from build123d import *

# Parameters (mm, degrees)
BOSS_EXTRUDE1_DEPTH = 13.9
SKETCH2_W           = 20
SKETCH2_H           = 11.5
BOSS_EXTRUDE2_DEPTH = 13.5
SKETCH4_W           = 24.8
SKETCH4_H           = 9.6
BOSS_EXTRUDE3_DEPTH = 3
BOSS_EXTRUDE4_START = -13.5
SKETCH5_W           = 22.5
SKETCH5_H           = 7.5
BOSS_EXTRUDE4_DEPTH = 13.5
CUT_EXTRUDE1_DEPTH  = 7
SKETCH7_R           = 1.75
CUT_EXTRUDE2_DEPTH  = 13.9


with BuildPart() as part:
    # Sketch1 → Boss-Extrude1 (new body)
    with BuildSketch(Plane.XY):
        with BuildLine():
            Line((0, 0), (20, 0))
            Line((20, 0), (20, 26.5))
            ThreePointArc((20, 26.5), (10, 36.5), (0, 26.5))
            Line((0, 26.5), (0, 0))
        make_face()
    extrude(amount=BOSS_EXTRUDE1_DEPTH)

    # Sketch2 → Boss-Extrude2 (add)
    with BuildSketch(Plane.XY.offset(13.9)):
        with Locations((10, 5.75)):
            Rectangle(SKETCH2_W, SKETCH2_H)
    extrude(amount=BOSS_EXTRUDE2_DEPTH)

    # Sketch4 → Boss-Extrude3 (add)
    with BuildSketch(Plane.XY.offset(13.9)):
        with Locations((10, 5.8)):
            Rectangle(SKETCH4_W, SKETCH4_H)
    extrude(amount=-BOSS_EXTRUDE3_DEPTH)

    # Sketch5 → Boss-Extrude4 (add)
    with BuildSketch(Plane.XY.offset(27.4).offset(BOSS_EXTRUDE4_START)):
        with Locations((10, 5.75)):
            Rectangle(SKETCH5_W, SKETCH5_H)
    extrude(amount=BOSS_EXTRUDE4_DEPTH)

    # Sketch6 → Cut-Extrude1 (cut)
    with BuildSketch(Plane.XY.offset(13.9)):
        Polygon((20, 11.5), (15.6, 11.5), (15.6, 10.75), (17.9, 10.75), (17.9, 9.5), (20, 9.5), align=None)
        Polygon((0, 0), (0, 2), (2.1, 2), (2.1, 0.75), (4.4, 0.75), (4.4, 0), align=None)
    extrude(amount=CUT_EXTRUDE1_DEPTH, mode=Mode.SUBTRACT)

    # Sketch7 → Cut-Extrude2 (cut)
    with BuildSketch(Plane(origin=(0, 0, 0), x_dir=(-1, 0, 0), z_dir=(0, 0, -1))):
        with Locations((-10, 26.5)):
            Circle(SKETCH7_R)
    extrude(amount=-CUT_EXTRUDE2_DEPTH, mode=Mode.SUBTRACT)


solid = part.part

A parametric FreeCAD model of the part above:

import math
import FreeCAD as App
import Part
import Sketcher

V = App.Vector
Q = App.Units.Quantity

doc = App.newDocument("Part")
body = doc.addObject("PartDesign::Body", "Body")

# Sketch on XY plane
sketch1 = doc.addObject("Sketcher::SketchObject", "Sketch")
body.addObject(sketch1)
sketch1.AttachmentSupport = (doc.XY_Plane, [""])
sketch1.MapMode = "FlatFace"
sketch1.addGeometry([
    Part.LineSegment(V(0, 0, 0), V(20, 0, 0)),
    Part.LineSegment(V(20, 0, 0), V(20, 26, 0)),
    Part.ArcOfCircle(Part.Circle(V(10, 26, 0), V(0, 0, 1), 10), math.radians(0), math.radians(180)),
    Part.LineSegment(V(0, 26, 0), V(0, 0, 0)),
], False)
sketch1.addConstraint([
    Sketcher.Constraint("Coincident", 0, 2, 1, 1),
    Sketcher.Constraint("Tangent", 1, 2, 2, 1),
    Sketcher.Constraint("Tangent", 2, 2, 3, 1),
    Sketcher.Constraint("Coincident", 3, 2, 0, 1),
    Sketcher.Constraint("Horizontal", 0),
    Sketcher.Constraint("Vertical", 1),
    Sketcher.Constraint("Vertical", 3),
    Sketcher.Constraint("Coincident", 3, 2, -1, 1),
    Sketcher.Constraint("Radius", 2, Q("10 mm")),
    Sketcher.Constraint("DistanceY", 1, 1, 1, 2, Q("26.5 mm")),
])
pad1 = doc.addObject("PartDesign::Pad", "Pad")
body.addObject(pad1)
pad1.Profile = sketch1
pad1.Length = 13.9

# Sketch on XY plane
sketch2 = doc.addObject("Sketcher::SketchObject", "Sketch001")
body.addObject(sketch2)
sketch2.AttachmentSupport = (doc.XY_Plane, [""])
sketch2.MapMode = "FlatFace"
sketch2.AttachmentOffset = App.Placement(V(0, 0, 13.9), App.Rotation())
sketch2.addGeometry([
    Part.LineSegment(V(0, 12, 0), V(0, 0, 0)),
    Part.LineSegment(V(0, 0, 0), V(20, 0, 0)),
    Part.LineSegment(V(20, 0, 0), V(20, 12, 0)),
    Part.LineSegment(V(20, 12, 0), V(0, 12, 0)),
], False)
sketch2.addConstraint([
    Sketcher.Constraint("Coincident", 0, 2, 1, 1),
    Sketcher.Constraint("Coincident", 1, 2, 2, 1),
    Sketcher.Constraint("Coincident", 2, 2, 3, 1),
    Sketcher.Constraint("Coincident", 3, 2, 0, 1),
    Sketcher.Constraint("Vertical", 0),
    Sketcher.Constraint("Horizontal", 1),
    Sketcher.Constraint("Vertical", 2),
    Sketcher.Constraint("Horizontal", 3),
    Sketcher.Constraint("Coincident", 0, 2, -1, 1),
    Sketcher.Constraint("DistanceX", 1, 1, 1, 2, Q("20 mm")),
    Sketcher.Constraint("DistanceY", 0, 2, 0, 1, Q("11.5 mm")),
])
pad2 = doc.addObject("PartDesign::Pad", "Pad001")
body.addObject(pad2)
pad2.Profile = sketch2
pad2.Length = 13.5

# Sketch on XY plane
sketch3 = doc.addObject("Sketcher::SketchObject", "Sketch002")
body.addObject(sketch3)
sketch3.AttachmentSupport = (doc.XY_Plane, [""])
sketch3.MapMode = "FlatFace"
sketch3.AttachmentOffset = App.Placement(V(0, 0, 13.9), App.Rotation())
sketch3.addGeometry([
    Part.LineSegment(V(-2, 11, 0), V(-2, 1, 0)),
    Part.LineSegment(V(-2, 1, 0), V(22, 1, 0)),
    Part.LineSegment(V(22, 1, 0), V(22, 11, 0)),
    Part.LineSegment(V(22, 11, 0), V(-2, 11, 0)),
], False)
sketch3.addConstraint([
    Sketcher.Constraint("Coincident", 0, 2, 1, 1),
    Sketcher.Constraint("Coincident", 1, 2, 2, 1),
    Sketcher.Constraint("Coincident", 2, 2, 3, 1),
    Sketcher.Constraint("Coincident", 3, 2, 0, 1),
    Sketcher.Constraint("Vertical", 0),
    Sketcher.Constraint("Horizontal", 1),
    Sketcher.Constraint("Vertical", 2),
    Sketcher.Constraint("Horizontal", 3),
    Sketcher.Constraint("DistanceX", 1, 1, 1, 2, Q("24.8 mm")),
    Sketcher.Constraint("DistanceY", 0, 2, 0, 1, Q("9.6 mm")),
    Sketcher.Constraint("DistanceY", -1, 1, 0, 2, Q("1 mm")),
    Sketcher.Constraint("DistanceX", 0, 2, -1, 1, Q("2.4 mm")),
])
pad3 = doc.addObject("PartDesign::Pad", "Pad002")
body.addObject(pad3)
pad3.Profile = sketch3
pad3.Length = 3
pad3.Reversed = True

# Sketch on XY plane
sketch4 = doc.addObject("Sketcher::SketchObject", "Sketch003")
body.addObject(sketch4)
sketch4.AttachmentSupport = (doc.XY_Plane, [""])
sketch4.MapMode = "FlatFace"
sketch4.AttachmentOffset = App.Placement(V(0, 0, 13.9), App.Rotation())
sketch4.addGeometry([
    Part.LineSegment(V(-1, 10, 0), V(-1, 2, 0)),
    Part.LineSegment(V(-1, 2, 0), V(21, 2, 0)),
    Part.LineSegment(V(21, 2, 0), V(21, 10, 0)),
    Part.LineSegment(V(21, 10, 0), V(-1, 10, 0)),
], False)
sketch4.addConstraint([
    Sketcher.Constraint("Coincident", 0, 2, 1, 1),
    Sketcher.Constraint("Coincident", 1, 2, 2, 1),
    Sketcher.Constraint("Coincident", 2, 2, 3, 1),
    Sketcher.Constraint("Coincident", 3, 2, 0, 1),
    Sketcher.Constraint("Vertical", 0),
    Sketcher.Constraint("Horizontal", 1),
    Sketcher.Constraint("Vertical", 2),
    Sketcher.Constraint("Horizontal", 3),
    Sketcher.Constraint("DistanceX", 1, 1, 1, 2, Q("22.5 mm")),
    Sketcher.Constraint("DistanceY", 0, 2, 0, 1, Q("7.5 mm")),
    Sketcher.Constraint("DistanceY", -1, 1, 0, 2, Q("2 mm")),
    Sketcher.Constraint("DistanceX", 0, 2, -1, 1, Q("1.25 mm")),
])
pad4 = doc.addObject("PartDesign::Pad", "Pad003")
body.addObject(pad4)
pad4.Profile = sketch4
pad4.Length = 13.5

# Sketch on XY plane
sketch5 = doc.addObject("Sketcher::SketchObject", "Sketch004")
body.addObject(sketch5)
sketch5.AttachmentSupport = (doc.XY_Plane, [""])
sketch5.MapMode = "FlatFace"
sketch5.AttachmentOffset = App.Placement(V(0, 0, 13.9), App.Rotation())
sketch5.addGeometry([
    Part.LineSegment(V(20, 11.5, 0), V(15.6, 11.5, 0)),  # 0
    Part.LineSegment(V(15.6, 11.5, 0), V(15.6, 10.8, 0)),  # 1
    Part.LineSegment(V(15.6, 10.8, 0), V(17.9, 10.8, 0)),  # 2
    Part.LineSegment(V(17.9, 10.8, 0), V(17.9, 9.5, 0)),  # 3
    Part.LineSegment(V(17.9, 9.5, 0), V(20, 9.5, 0)),  # 4
    Part.LineSegment(V(20, 9.5, 0), V(20, 11.5, 0)),  # 5
    Part.LineSegment(V(0, 2, 0), V(0, 0, 0)),  # 6
    Part.LineSegment(V(0, 0, 0), V(4.4, 0, 0)),  # 7
    Part.LineSegment(V(4.4, 0, 0), V(4.4, 0.8, 0)),  # 8
    Part.LineSegment(V(4.4, 0.8, 0), V(2.1, 0.8, 0)),  # 9
    Part.LineSegment(V(2.1, 0.8, 0), V(2.1, 2, 0)),  # 10
    Part.LineSegment(V(2.1, 2, 0), V(0, 2, 0)),  # 11
], False)
sketch5.addConstraint([
    Sketcher.Constraint("Coincident", 0, 2, 1, 1),
    Sketcher.Constraint("Coincident", 1, 2, 2, 1),
    Sketcher.Constraint("Coincident", 2, 2, 3, 1),
    Sketcher.Constraint("Coincident", 3, 2, 4, 1),
    Sketcher.Constraint("Coincident", 4, 2, 5, 1),
    Sketcher.Constraint("Coincident", 5, 2, 0, 1),
    Sketcher.Constraint("Coincident", 6, 2, 7, 1),
    Sketcher.Constraint("Coincident", 7, 2, 8, 1),
    Sketcher.Constraint("Coincident", 8, 2, 9, 1),
    Sketcher.Constraint("Coincident", 9, 2, 10, 1),
    Sketcher.Constraint("Coincident", 10, 2, 11, 1),
    Sketcher.Constraint("Coincident", 11, 2, 6, 1),
    Sketcher.Constraint("Horizontal", 0),
    Sketcher.Constraint("Vertical", 1),
    Sketcher.Constraint("Horizontal", 2),
    Sketcher.Constraint("Vertical", 3),
    Sketcher.Constraint("Horizontal", 4),
    Sketcher.Constraint("Vertical", 5),
    Sketcher.Constraint("Vertical", 6),
    Sketcher.Constraint("Horizontal", 7),
    Sketcher.Constraint("Vertical", 8),
    Sketcher.Constraint("Horizontal", 9),
    Sketcher.Constraint("Vertical", 10),
    Sketcher.Constraint("Horizontal", 11),
    Sketcher.Constraint("Coincident", 6, 2, -1, 1),
    Sketcher.Constraint("Equal", 0, 7),
    Sketcher.Constraint("Equal", 2, 9),
    Sketcher.Constraint("Equal", 5, 6),
    Sketcher.Constraint("Equal", 1, 8),
    Sketcher.Constraint("DistanceY", 5, 1, 5, 2, Q("2 mm")),
    Sketcher.Constraint("DistanceX", 0, 2, 0, 1, Q("4.4 mm")),
    Sketcher.Constraint("DistanceX", 2, 1, 2, 2, Q("2.3 mm")),
    Sketcher.Constraint("DistanceX", -1, 1, 4, 2, Q("20 mm")),
    Sketcher.Constraint("DistanceY", 8, 2, 1, 2, Q("10 mm")),
    Sketcher.Constraint("DistanceY", 1, 2, 1, 1, Q("0.75 mm")),
])
pocket1 = doc.addObject("PartDesign::Pocket", "Pocket")
body.addObject(pocket1)
pocket1.Profile = sketch5
pocket1.Length = 7
pocket1.Reversed = True

# Sketch on XY plane
sketch6 = doc.addObject("Sketcher::SketchObject", "Sketch005")
body.addObject(sketch6)
sketch6.AttachmentSupport = (doc.XY_Plane, [""])
sketch6.MapMode = "FlatFace"
sketch6.addGeometry(Part.Circle(V(10, 26.5, 0), V(0, 0, 1), 1.8), False)
sketch6.addConstraint([
    Sketcher.Constraint("Diameter", 0, Q("3.5 mm")),
    Sketcher.Constraint("DistanceX", -1, 1, 0, 3, Q("10 mm")),
    Sketcher.Constraint("DistanceY", -1, 1, 0, 3, Q("26.5 mm")),
])
pocket2 = doc.addObject("PartDesign::Pocket", "Pocket001")
body.addObject(pocket2)
pocket2.Profile = sketch6
pocket2.Length = 13.9
pocket2.Reversed = True

doc.recompute()
